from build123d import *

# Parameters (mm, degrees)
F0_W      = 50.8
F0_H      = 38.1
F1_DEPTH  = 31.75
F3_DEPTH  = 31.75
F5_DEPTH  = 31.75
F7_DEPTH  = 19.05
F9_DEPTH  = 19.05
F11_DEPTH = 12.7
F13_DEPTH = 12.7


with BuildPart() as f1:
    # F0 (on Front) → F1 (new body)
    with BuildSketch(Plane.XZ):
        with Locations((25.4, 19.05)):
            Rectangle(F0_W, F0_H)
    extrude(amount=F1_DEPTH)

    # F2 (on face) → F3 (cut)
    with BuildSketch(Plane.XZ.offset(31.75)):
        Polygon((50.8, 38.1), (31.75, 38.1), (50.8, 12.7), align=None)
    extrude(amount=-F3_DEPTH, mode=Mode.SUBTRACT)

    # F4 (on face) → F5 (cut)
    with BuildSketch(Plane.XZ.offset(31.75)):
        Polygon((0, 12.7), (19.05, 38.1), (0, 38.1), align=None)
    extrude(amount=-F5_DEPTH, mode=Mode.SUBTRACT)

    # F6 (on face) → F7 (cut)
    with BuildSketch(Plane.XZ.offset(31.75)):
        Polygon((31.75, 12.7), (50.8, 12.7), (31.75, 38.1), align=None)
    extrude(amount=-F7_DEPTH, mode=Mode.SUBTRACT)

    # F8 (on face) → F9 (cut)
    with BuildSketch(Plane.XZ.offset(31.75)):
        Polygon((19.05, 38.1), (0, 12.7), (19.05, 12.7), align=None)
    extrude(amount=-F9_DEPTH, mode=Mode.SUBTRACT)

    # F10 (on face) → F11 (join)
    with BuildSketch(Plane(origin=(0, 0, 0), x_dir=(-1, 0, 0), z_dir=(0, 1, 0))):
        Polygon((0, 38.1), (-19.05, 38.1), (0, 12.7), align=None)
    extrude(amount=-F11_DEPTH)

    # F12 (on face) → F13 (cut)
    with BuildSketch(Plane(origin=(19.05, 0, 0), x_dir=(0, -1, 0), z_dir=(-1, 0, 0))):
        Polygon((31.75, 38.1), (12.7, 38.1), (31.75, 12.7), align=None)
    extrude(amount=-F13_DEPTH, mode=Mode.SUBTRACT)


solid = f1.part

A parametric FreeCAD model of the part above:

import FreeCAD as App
import Part
import Sketcher

V = App.Vector
Q = App.Units.Quantity

doc = App.newDocument("Part")
body = doc.addObject("PartDesign::Body", "Body")

sketch1 = body.newObject("Sketcher::SketchObject", "Sketch")
sketch1.AttachmentSupport = (doc.getObject("XZ_Plane"), [""])
sketch1.MapMode = "FlatFace"
sketch1.addGeometry(Part.LineSegment(V(0, 38, 0), V(0, 0, 0)), False)
sketch1.addGeometry(Part.LineSegment(V(0, 0, 0), V(51, 0, 0)), False)
sketch1.addGeometry(Part.LineSegment(V(51, 0, 0), V(51, 38, 0)), False)
sketch1.addGeometry(Part.LineSegment(V(51, 38, 0), V(0, 38, 0)), False)
sketch1.addConstraint(Sketcher.Constraint("Coincident", 0, 2, 1, 1))
sketch1.addConstraint(Sketcher.Constraint("Coincident", 1, 2, 2, 1))
sketch1.addConstraint(Sketcher.Constraint("Coincident", 2, 2, 3, 1))
sketch1.addConstraint(Sketcher.Constraint("Coincident", 3, 2, 0, 1))
sketch1.addConstraint(Sketcher.Constraint("Vertical", 0))
sketch1.addConstraint(Sketcher.Constraint("Horizontal", 1))
sketch1.addConstraint(Sketcher.Constraint("Vertical", 2))
sketch1.addConstraint(Sketcher.Constraint("Horizontal", 3))
sketch1.addConstraint(Sketcher.Constraint("Coincident", 0, 2, -1, 1))
sketch1.addConstraint(Sketcher.Constraint("DistanceX", 1, 1, 1, 2, Q("2 in")))
sketch1.addConstraint(Sketcher.Constraint("DistanceY", 0, 2, 0, 1, Q("1.5 in")))
pad1 = body.newObject("PartDesign::Pad", "Pad")
pad1.Profile = sketch1
pad1.Length = Q("1.25 in")

sketch2 = body.newObject("Sketcher::SketchObject", "Sketch001")
sketch2.AttachmentSupport = (doc.getObject("XZ_Plane"), [""])
sketch2.MapMode = "FlatFace"
sketch2.AttachmentOffset = App.Placement(V(0, 0, 1.25 * 25.4), App.Rotation())
sketch2.addGeometry(Part.LineSegment(V(51, 38, 0), V(32, 38, 0)), False)
sketch2.addGeometry(Part.LineSegment(V(32, 38, 0), V(51, 13, 0)), False)
sketch2.addGeometry(Part.LineSegment(V(51, 13, 0), V(51, 38, 0)), False)
sketch2.addConstraint(Sketcher.Constraint("Coincident", 0, 2, 1, 1))
sketch2.addConstraint(Sketcher.Constraint("Coincident", 1, 2, 2, 1))
sketch2.addConstraint(Sketcher.Constraint("Coincident", 2, 2, 0, 1))
sketch2.addConstraint(Sketcher.Constraint("Horizontal", 0))
sketch2.addConstraint(Sketcher.Constraint("Vertical", 2))
sketch2.addConstraint(Sketcher.Constraint("DistanceY", 2, 1, 2, 2, Q("1 in")))
sketch2.addConstraint(Sketcher.Constraint("DistanceX", -1, 1, 1, 2, Q("2 in")))
sketch2.addConstraint(Sketcher.Constraint("DistanceX", 0, 2, 0, 1, Q("0.75 in")))
sketch2.addConstraint(Sketcher.Constraint("DistanceY", -1, 1, 0, 2, Q("1.5 in")))
pocket1 = body.newObject("PartDesign::Pocket", "Pocket")
pocket1.Profile = sketch2
pocket1.Length = Q("1.25 in")

sketch3 = body.newObject("Sketcher::SketchObject", "Sketch002")
sketch3.AttachmentSupport = (doc.getObject("XZ_Plane"), [""])
sketch3.MapMode = "FlatFace"
sketch3.AttachmentOffset = App.Placement(V(0, 0, 1.25 * 25.4), App.Rotation())
sketch3.addGeometry(Part.LineSegment(V(0, 13, 0), V(19, 38, 0)), False)
sketch3.addGeometry(Part.LineSegment(V(19, 38, 0), V(0, 38, 0)), False)
sketch3.addGeometry(Part.LineSegment(V(0, 38, 0), V(0, 13, 0)), False)
sketch3.addConstraint(Sketcher.Constraint("Coincident", 0, 2, 1, 1))
sketch3.addConstraint(Sketcher.Constraint("Coincident", 1, 2, 2, 1))
sketch3.addConstraint(Sketcher.Constraint("Coincident", 2, 2, 0, 1))
sketch3.addConstraint(Sketcher.Constraint("Horizontal", 1))
sketch3.addConstraint(Sketcher.Constraint("Vertical", 2))
sketch3.addConstraint(Sketcher.Constraint("PointOnObject", 1, 2, -2))
sketch3.addConstraint(Sketcher.Constraint("DistanceY", 2, 2, 2, 1, Q("1 in")))
sketch3.addConstraint(Sketcher.Constraint("DistanceX", 1, 2, 1, 1, Q("0.75 in")))
sketch3.addConstraint(Sketcher.Constraint("DistanceY", -1, 1, 0, 2, Q("1.5 in")))
pocket2 = body.newObject("PartDesign::Pocket", "Pocket001")
pocket2.Profile = sketch3
pocket2.Length = Q("1.25 in")

sketch4 = body.newObject("Sketcher::SketchObject", "Sketch003")
sketch4.AttachmentSupport = (doc.getObject("XZ_Plane"), [""])
sketch4.MapMode = "FlatFace"
sketch4.AttachmentOffset = App.Placement(V(0, 0, 1.25 * 25.4), App.Rotation())
sketch4.addGeometry(Part.LineSegment(V(32, 13, 0), V(51, 13, 0)), False)
sketch4.addGeometry(Part.LineSegment(V(51, 13, 0), V(32, 38, 0)), False)
sketch4.addGeometry(Part.LineSegment(V(32, 38, 0), V(32, 13, 0)), False)
sketch4.addConstraint(Sketcher.Constraint("Coincident", 0, 2, 1, 1))
sketch4.addConstraint(Sketcher.Constraint("Coincident", 1, 2, 2, 1))
sketch4.addConstraint(Sketcher.Constraint("Coincident", 2, 2, 0, 1))
sketch4.addConstraint(Sketcher.Constraint("Horizontal", 0))
sketch4.addConstraint(Sketcher.Constraint("Vertical", 2))
sketch4.addConstraint(Sketcher.Constraint("DistanceY", 2, 2, 2, 1, Q("1 in")))
sketch4.addConstraint(Sketcher.Constraint("DistanceX", -1, 1, 0, 2, Q("2 in")))
sketch4.addConstraint(Sketcher.Constraint("DistanceX", 0, 1, 0, 2, Q("0.75 in")))
sketch4.addConstraint(Sketcher.Constraint("DistanceY", -1, 1, 0, 2, Q("0.5 in")))
pocket3 = body.newObject("PartDesign::Pocket", "Pocket002")
pocket3.Profile = sketch4
pocket3.Length = Q("0.75 in")

sketch5 = body.newObject("Sketcher::SketchObject", "Sketch004")
sketch5.AttachmentSupport = (doc.getObject("XZ_Plane"), [""])
sketch5.MapMode = "FlatFace"
sketch5.AttachmentOffset = App.Placement(V(0, 0, 1.25 * 25.4), App.Rotation())
sketch5.addGeometry(Part.LineSegment(V(19, 38, 0), V(0, 13, 0)), False)
sketch5.addGeometry(Part.LineSegment(V(0, 13, 0), V(19, 13, 0)), False)
sketch5.addGeometry(Part.LineSegment(V(19, 13, 0), V(19, 38, 0)), False)
sketch5.addConstraint(Sketcher.Constraint("Coincident", 0, 2, 1, 1))
sketch5.addConstraint(Sketcher.Constraint("Coincident", 1, 2, 2, 1))
sketch5.addConstraint(Sketcher.Constraint("Coincident", 2, 2, 0, 1))
sketch5.addConstraint(Sketcher.Constraint("Horizontal", 1))
sketch5.addConstraint(Sketcher.Constraint("Vertical", 2))
sketch5.addConstraint(Sketcher.Constraint("PointOnObject", 0, 2, -2))
sketch5.addConstraint(Sketcher.Constraint("DistanceY", 2, 1, 2, 2, Q("1 in")))
sketch5.addConstraint(Sketcher.Constraint("DistanceX", 1, 1, 1, 2, Q("0.75 in")))
sketch5.addConstraint(Sketcher.Constraint("DistanceY", -1, 1, 0, 2, Q("0.5 in")))
pocket4 = body.newObject("PartDesign::Pocket", "Pocket003")
pocket4.Profile = sketch5
pocket4.Length = Q("0.75 in")

sketch6 = body.newObject("Sketcher::SketchObject", "Sketch005")
sketch6.AttachmentSupport = (doc.getObject("XZ_Plane"), [""])
sketch6.MapMode = "FlatFace"
sketch6.addGeometry(Part.LineSegment(V(0, 38, 0), V(19, 38, 0)), False)
sketch6.addGeometry(Part.LineSegment(V(19, 38, 0), V(0, 13, 0)), False)
sketch6.addGeometry(Part.LineSegment(V(0, 13, 0), V(0, 38, 0)), False)
sketch6.addConstraint(Sketcher.Constraint("Coincident", 0, 2, 1, 1))
sketch6.addConstraint(Sketcher.Constraint("Coincident", 1, 2, 2, 1))
sketch6.addConstraint(Sketcher.Constraint("Coincident", 2, 2, 0, 1))
sketch6.addConstraint(Sketcher.Constraint("Horizontal", 0))
sketch6.addConstraint(Sketcher.Constraint("Vertical", 2))
sketch6.addConstraint(Sketcher.Constraint("PointOnObject", 1, 2, -2))
sketch6.addConstraint(Sketcher.Constraint("DistanceY", 2, 1, 2, 2, Q("1 in")))
sketch6.addConstraint(Sketcher.Constraint("DistanceX", 0, 1, 0, 2, Q("0.75 in")))
sketch6.addConstraint(Sketcher.Constraint("DistanceY", -1, 1, 0, 2, Q("1.5 in")))
pad2 = body.newObject("PartDesign::Pad", "Pad001")
pad2.Profile = sketch6
pad2.Length = Q("0.5 in")

sketch7 = body.newObject("Sketcher::SketchObject", "Sketch006")
sketch7.AttachmentSupport = (doc.getObject("YZ_Plane"), [""])
sketch7.MapMode = "FlatFace"
sketch7.AttachmentOffset = App.Placement(V(0, 0, 0.75 * 25.4), App.Rotation())
sketch7.addGeometry(Part.LineSegment(V(-32, 38, 0), V(-13, 38, 0)), False)
sketch7.addGeometry(Part.LineSegment(V(-13, 38, 0), V(-32, 13, 0)), False)
sketch7.addGeometry(Part.LineSegment(V(-32, 13, 0), V(-32, 38, 0)), False)
sketch7.addConstraint(Sketcher.Constraint("Coincident", 0, 2, 1, 1))
sketch7.addConstraint(Sketcher.Constraint("Coincident", 1, 2, 2, 1))
sketch7.addConstraint(Sketcher.Constraint("Coincident", 2, 2, 0, 1))
sketch7.addConstraint(Sketcher.Constraint("Horizontal", 0))
sketch7.addConstraint(Sketcher.Constraint("Vertical", 2))
sketch7.addConstraint(Sketcher.Constraint("DistanceY", 2, 1, 2, 2, Q("1 in")))
sketch7.addConstraint(Sketcher.Constraint("DistanceX", 0, 1, 0, 2, Q("0.75 in")))
sketch7.addConstraint(Sketcher.Constraint("DistanceX", 0, 2, -1, 1, Q("0.5 in")))
sketch7.addConstraint(Sketcher.Constraint("DistanceY", -1, 1, 0, 2, Q("1.5 in")))
pocket5 = body.newObject("PartDesign::Pocket", "Pocket004")
pocket5.Profile = sketch7
pocket5.Length = Q("0.5 in")
pocket5.Reversed = True

doc.recompute()
